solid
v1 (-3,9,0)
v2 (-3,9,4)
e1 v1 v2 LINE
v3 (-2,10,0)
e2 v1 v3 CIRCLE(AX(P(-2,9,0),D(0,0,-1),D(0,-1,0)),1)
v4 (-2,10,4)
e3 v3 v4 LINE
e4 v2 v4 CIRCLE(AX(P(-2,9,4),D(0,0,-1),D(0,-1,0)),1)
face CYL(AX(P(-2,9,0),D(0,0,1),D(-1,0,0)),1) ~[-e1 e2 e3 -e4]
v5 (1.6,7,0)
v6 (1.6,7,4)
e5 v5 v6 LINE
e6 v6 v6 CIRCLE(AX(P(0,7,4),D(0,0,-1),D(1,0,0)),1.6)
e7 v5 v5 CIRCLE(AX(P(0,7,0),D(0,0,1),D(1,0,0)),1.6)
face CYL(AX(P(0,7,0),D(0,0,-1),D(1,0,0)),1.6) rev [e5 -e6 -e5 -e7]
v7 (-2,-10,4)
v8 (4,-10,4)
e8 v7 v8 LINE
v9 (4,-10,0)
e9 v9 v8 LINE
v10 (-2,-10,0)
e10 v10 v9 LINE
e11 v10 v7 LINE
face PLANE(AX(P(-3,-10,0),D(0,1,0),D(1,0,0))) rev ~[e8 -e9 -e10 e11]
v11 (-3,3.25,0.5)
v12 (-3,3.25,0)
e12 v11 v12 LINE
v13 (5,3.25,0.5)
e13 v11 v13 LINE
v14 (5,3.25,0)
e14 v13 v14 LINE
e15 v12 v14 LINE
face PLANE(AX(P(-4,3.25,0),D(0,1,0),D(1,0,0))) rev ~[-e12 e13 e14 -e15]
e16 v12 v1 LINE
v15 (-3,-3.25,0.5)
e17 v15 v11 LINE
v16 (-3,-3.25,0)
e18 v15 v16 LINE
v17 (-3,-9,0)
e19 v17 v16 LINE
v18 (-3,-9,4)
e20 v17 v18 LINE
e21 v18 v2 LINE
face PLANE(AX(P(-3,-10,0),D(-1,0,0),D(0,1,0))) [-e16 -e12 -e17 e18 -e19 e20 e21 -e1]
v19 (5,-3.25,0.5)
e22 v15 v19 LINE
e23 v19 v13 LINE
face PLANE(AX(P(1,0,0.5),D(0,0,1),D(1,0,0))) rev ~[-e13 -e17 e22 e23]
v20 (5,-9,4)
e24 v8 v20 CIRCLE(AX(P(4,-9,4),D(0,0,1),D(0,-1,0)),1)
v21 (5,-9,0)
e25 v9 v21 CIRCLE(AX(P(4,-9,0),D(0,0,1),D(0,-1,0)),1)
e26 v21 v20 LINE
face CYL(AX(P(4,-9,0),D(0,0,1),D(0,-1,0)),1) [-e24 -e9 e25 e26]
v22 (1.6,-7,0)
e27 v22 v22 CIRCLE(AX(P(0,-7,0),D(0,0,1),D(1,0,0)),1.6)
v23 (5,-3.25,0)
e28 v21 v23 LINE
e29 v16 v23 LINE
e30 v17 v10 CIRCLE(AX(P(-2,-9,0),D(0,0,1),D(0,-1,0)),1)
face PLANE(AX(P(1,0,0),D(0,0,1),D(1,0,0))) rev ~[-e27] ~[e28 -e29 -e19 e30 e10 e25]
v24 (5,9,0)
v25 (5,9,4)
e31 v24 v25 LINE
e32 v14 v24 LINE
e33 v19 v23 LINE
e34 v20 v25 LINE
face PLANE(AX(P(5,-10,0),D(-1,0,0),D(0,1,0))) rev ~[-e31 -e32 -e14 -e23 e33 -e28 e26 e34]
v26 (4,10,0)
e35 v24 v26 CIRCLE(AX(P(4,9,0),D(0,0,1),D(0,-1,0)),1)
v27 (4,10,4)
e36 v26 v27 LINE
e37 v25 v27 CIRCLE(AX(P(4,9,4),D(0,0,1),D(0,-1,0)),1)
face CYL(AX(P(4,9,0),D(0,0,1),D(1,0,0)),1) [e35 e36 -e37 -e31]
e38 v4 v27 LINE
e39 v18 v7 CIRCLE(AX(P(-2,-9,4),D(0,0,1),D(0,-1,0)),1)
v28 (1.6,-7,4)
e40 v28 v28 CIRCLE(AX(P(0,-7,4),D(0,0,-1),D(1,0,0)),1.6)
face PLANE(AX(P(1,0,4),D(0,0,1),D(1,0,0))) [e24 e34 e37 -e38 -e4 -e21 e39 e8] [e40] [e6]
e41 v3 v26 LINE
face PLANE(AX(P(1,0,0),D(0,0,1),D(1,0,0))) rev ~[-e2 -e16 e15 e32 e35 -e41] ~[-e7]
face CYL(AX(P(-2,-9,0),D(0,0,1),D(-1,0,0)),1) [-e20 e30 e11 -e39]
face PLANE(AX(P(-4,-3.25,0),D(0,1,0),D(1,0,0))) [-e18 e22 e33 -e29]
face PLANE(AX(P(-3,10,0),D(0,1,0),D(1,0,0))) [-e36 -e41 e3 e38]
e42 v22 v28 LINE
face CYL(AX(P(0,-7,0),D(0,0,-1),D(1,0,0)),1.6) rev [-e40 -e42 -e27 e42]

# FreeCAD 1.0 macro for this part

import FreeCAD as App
import Part
import Sketcher


def edges_at(feature, points):
    """Names of the edges that pass closest to the given points."""
    edges = feature.Shape.Edges
    near = lambda p: min(range(len(edges)), key=lambda i: edges[i].distToShape(Part.Vertex(*p))[0])
    return sorted({f"Edge{near(p) + 1}" for p in points})

doc = App.newDocument("Part")
body = doc.addObject("PartDesign::Body", "Body")

sketch1 = body.newObject("Sketcher::SketchObject", "Sketch")
sketch1.AttachmentSupport = (doc.getObject("XY_Plane"), [""])
sketch1.MapMode = "FlatFace"
sketch1.addGeometry(Part.LineSegment(App.Vector(-4, 3, 0), App.Vector(-4, -3, 0)), False)
sketch1.addGeometry(Part.LineSegment(App.Vector(-4, -3, 0), App.Vector(6, -3, 0)), False)
sketch1.addGeometry(Part.LineSegment(App.Vector(6, -3, 0), App.Vector(6, 3, 0)), False)
sketch1.addGeometry(Part.LineSegment(App.Vector(6, 3, 0), App.Vector(-4, 3, 0)), False)
sketch1.addConstraint(Sketcher.Constraint("Coincident", 0, 2, 1, 1))
sketch1.addConstraint(Sketcher.Constraint("Coincident", 1, 2, 2, 1))
sketch1.addConstraint(Sketcher.Constraint("Coincident", 2, 2, 3, 1))
sketch1.addConstraint(Sketcher.Constraint("Coincident", 3, 2, 0, 1))
sketch1.addConstraint(Sketcher.Constraint("Vertical", 0))
sketch1.addConstraint(Sketcher.Constraint("Horizontal", 1))
sketch1.addConstraint(Sketcher.Constraint("Vertical", 2))
sketch1.addConstraint(Sketcher.Constraint("Horizontal", 3))
sketch1.addConstraint(Sketcher.Constraint("DistanceX", 1, 1, 1, 2, 10.0))
sketch1.addConstraint(Sketcher.Constraint("DistanceY", 0, 2, 0, 1, 6.5))
sketch1.addConstraint(Sketcher.Constraint("DistanceX", 0, 2, -1, 1, 4.0))
sketch1.addConstraint(Sketcher.Constraint("DistanceY", 0, 2, -1, 1, 3.25))
pad1 = body.newObject("PartDesign::Pad", "Pad")
pad1.Profile = sketch1
pad1.Length = 0.5
body2 = doc.addObject("PartDesign::Body", "Body001")

sketch2 = body2.newObject("Sketcher::SketchObject", "Sketch001")
sketch2.AttachmentSupport = (doc.getObject("XY_Plane001"), [""])
sketch2.MapMode = "FlatFace"
sketch2.addGeometry(Part.Circle(App.Vector(0, -7, 0), App.Vector(0, 0, 1), 1.6), False)
sketch2.addConstraint(Sketcher.Constraint("PointOnObject", 0, 3, -2))
sketch2.addConstraint(Sketcher.Constraint("Diameter", 0, 3.2))
sketch2.addConstraint(Sketcher.Constraint("DistanceY", 0, 3, -1, 1, 7.0))
pad2 = body2.newObject("PartDesign::Pad", "Pad001")
pad2.Profile = sketch2
pad2.Length = 10
body3 = doc.addObject("PartDesign::Body", "Body002")
body3.AllowCompound = True

sketch3 = body3.newObject("Sketcher::SketchObject", "Sketch002")
sketch3.AttachmentSupport = (doc.getObject("XY_Plane002"), [""])
sketch3.MapMode = "FlatFace"
sketch3.addGeometry(Part.Circle(App.Vector(0, 7, 0), App.Vector(0, 0, 1), 1.6), False)
sketch3.addConstraint(Sketcher.Constraint("PointOnObject", 0, 3, -2))
sketch3.addConstraint(Sketcher.Constraint("Diameter", 0, 3.2))
sketch3.addConstraint(Sketcher.Constraint("DistanceY", -1, 1, 0, 3, 7.0))
pad3 = body3.newObject("PartDesign::Pad", "Pad002")
pad3.Profile = sketch3
pad3.Length = 10
doc.recompute()

boolean = body3.newObject("PartDesign::Boolean", "Boolean")
boolean.Type = "Fuse"
boolean.addObjects([body2])
body4 = doc.addObject("PartDesign::Body", "Body003")

sketch4 = body4.newObject("Sketcher::SketchObject", "Sketch003")
sketch4.AttachmentSupport = (doc.getObject("XY_Plane003"), [""])
sketch4.MapMode = "FlatFace"
sketch4.addGeometry(Part.LineSegment(App.Vector(-3, 10, 0), App.Vector(-3, -10, 0)), False)
sketch4.addGeometry(Part.LineSegment(App.Vector(-3, -10, 0), App.Vector(5, -10, 0)), False)
sketch4.addGeometry(Part.LineSegment(App.Vector(5, -10, 0), App.Vector(5, 10, 0)), False)
sketch4.addGeometry(Part.LineSegment(App.Vector(5, 10, 0), App.Vector(-3, 10, 0)), False)
sketch4.addConstraint(Sketcher.Constraint("Coincident", 0, 2, 1, 1))
sketch4.addConstraint(Sketcher.Constraint("Coincident", 1, 2, 2, 1))
sketch4.addConstraint(Sketcher.Constraint("Coincident", 2, 2, 3, 1))
sketch4.addConstraint(Sketcher.Constraint("Coincident", 3, 2, 0, 1))
sketch4.addConstraint(Sketcher.Constraint("Vertical", 0))
sketch4.addConstraint(Sketcher.Constraint("Horizontal", 1))
sketch4.addConstraint(Sketcher.Constraint("Vertical", 2))
sketch4.addConstraint(Sketcher.Constraint("Horizontal", 3))
sketch4.addConstraint(Sketcher.Constraint("DistanceX", 1, 1, 1, 2, 8.0))
sketch4.addConstraint(Sketcher.Constraint("DistanceY", 0, 2, 0, 1, 20.0))
sketch4.addConstraint(Sketcher.Constraint("DistanceX", 0, 2, -1, 1, 3.0))
sketch4.addConstraint(Sketcher.Constraint("DistanceY", 0, 2, -1, 1, 10.0))
pad4 = body4.newObject("PartDesign::Pad", "Pad003")
pad4.Profile = sketch4
pad4.Length = 4
doc.recompute()

fillet = body4.newObject("PartDesign::Fillet", "Fillet")
fillet.Base = (pad4, edges_at(pad4, [
    (-3, -10, 2),
    (-3, 10, 2),
    (5, -10, 2),
    (5, 10, 2),
]))
fillet.Radius = 1
doc.recompute()

boolean2 = body4.newObject("PartDesign::Boolean", "Boolean001")
boolean2.Type = "Cut"
boolean2.addObjects([body3])
doc.recompute()

boolean3 = body4.newObject("PartDesign::Boolean", "Boolean002")
boolean3.Type = "Cut"
boolean3.addObjects([body])

doc.recompute()
